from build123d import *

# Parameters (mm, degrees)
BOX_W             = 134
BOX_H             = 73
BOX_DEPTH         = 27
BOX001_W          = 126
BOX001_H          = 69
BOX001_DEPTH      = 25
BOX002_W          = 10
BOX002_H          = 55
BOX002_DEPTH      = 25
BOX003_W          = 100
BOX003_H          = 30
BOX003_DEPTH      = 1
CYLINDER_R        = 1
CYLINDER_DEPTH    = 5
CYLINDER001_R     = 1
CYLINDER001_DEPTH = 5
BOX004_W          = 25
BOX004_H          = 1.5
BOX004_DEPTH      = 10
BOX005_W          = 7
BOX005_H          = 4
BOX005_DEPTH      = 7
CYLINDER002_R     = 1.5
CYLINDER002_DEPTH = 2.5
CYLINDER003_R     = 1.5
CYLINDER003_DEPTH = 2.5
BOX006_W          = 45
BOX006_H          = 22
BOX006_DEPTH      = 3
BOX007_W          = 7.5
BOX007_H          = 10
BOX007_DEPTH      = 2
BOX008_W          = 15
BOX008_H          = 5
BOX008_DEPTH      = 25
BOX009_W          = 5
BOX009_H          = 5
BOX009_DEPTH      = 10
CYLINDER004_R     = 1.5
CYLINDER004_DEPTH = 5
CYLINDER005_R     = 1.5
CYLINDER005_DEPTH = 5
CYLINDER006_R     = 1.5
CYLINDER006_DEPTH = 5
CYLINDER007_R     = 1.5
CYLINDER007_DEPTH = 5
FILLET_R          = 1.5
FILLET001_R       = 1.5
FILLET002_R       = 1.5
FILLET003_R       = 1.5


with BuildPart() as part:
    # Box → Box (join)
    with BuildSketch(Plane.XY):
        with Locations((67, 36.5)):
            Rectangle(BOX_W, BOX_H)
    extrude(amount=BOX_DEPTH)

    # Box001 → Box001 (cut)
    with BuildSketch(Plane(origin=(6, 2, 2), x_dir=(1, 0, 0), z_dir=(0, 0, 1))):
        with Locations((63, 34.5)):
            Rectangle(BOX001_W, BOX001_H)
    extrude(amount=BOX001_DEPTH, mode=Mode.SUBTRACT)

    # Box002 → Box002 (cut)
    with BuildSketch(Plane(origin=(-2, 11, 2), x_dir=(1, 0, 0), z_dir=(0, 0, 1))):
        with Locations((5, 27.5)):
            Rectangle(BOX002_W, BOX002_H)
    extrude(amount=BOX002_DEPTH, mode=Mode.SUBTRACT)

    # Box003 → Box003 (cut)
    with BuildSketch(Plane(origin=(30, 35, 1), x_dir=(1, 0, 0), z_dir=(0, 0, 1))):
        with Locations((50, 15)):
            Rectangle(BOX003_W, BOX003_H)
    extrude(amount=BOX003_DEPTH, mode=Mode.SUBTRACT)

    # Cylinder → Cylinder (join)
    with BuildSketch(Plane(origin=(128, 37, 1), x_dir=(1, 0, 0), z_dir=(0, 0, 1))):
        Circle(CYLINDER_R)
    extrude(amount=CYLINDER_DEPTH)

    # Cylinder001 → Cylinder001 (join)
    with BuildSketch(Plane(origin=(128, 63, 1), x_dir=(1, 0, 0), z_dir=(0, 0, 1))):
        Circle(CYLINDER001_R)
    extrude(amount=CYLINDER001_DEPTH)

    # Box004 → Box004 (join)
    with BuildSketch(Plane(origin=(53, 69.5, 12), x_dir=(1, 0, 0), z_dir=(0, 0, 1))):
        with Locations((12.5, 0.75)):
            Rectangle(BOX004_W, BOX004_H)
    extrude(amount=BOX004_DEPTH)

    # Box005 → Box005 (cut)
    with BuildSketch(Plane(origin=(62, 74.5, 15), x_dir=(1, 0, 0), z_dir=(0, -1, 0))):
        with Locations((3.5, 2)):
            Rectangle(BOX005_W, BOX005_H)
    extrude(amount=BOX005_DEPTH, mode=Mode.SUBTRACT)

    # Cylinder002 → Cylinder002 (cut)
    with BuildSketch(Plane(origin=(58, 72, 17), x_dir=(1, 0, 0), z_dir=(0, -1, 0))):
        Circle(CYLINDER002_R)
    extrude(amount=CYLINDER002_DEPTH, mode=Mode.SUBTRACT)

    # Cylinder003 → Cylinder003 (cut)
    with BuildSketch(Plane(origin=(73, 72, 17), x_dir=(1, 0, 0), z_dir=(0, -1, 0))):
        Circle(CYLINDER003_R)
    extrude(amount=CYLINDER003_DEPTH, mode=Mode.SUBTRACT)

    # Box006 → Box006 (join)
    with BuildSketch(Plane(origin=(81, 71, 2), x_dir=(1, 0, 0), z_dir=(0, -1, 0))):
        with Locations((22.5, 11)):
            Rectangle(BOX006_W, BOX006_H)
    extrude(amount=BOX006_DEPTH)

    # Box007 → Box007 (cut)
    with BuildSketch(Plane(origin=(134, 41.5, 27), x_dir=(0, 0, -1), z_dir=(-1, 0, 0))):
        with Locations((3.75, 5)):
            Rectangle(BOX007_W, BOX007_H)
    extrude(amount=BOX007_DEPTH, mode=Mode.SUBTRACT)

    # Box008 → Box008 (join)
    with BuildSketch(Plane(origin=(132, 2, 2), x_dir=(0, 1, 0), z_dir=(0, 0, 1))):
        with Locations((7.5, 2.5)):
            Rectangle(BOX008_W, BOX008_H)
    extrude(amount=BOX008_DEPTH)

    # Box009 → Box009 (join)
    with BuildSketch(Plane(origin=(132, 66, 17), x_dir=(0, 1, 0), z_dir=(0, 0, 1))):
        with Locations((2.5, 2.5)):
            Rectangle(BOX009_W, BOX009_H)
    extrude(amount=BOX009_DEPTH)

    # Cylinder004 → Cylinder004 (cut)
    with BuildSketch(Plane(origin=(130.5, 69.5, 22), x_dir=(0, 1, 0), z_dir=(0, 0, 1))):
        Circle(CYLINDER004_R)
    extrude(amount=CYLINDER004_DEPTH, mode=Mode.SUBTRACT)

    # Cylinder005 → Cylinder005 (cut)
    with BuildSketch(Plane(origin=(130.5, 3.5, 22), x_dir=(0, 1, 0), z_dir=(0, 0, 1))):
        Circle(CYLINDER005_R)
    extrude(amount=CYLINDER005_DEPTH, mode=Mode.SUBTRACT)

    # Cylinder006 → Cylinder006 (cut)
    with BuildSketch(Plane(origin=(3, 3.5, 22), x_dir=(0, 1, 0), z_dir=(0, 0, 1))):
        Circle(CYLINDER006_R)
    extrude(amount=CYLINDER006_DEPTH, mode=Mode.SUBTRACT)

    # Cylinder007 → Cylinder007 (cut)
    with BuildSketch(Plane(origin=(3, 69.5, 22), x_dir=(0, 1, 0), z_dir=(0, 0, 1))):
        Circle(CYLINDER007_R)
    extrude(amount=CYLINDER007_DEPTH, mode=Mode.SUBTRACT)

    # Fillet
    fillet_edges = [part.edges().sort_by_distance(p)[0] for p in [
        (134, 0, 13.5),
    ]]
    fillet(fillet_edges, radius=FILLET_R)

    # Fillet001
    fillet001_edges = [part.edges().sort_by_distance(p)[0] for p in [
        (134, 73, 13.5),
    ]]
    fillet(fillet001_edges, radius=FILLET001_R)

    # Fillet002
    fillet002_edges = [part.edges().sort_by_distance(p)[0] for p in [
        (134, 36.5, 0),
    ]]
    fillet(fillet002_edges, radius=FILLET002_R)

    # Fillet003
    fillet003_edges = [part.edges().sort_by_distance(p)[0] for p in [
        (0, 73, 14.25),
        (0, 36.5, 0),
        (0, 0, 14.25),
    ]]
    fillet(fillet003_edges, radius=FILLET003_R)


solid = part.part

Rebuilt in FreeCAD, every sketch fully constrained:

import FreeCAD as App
import Part
import Sketcher
from FreeCAD import Vector
Q = App.Units.Quantity


def edges_at(feature, points):
    """Names of the edges that pass closest to the given points."""
    edges = feature.Shape.Edges
    near = lambda p: min(range(len(edges)), key=lambda i: edges[i].distToShape(Part.Vertex(*p))[0])
    return sorted({f"Edge{near(p) + 1}" for p in points})


def add_polygon(sketch, points):
    """Adds a closed chain of lines whose ends are joined by coincident constraints."""
    first, n = sketch.GeometryCount, len(points)
    for a, b in zip(points, points[1:] + points[:1]):
        sketch.addGeometry(Part.LineSegment(App.Vector(*a, 0), App.Vector(*b, 0)), False)
    for i in range(n):
        sketch.addConstraint(Sketcher.Constraint("Coincident", first + i, 2, first + (i + 1) % n, 1))

doc = App.newDocument("Part")
params = doc.addObject("Spreadsheet::Sheet", "Params")
for row, (alias, value) in enumerate([
    ("sketch1_width", "134 mm"),
    ("sketch1_height", "73 mm"),
    ("pad1_length", "27 mm"),
    ("sketch2_width", "126 mm"),
    ("sketch2_height", "69 mm"),
    ("pocket1_length", "25 mm"),
    ("sketch3_width", "10 mm"),
    ("sketch3_height", "55 mm"),
    ("pocket2_length", "25 mm"),
    ("sketch4_width", "100 mm"),
    ("sketch4_height", "30 mm"),
    ("pocket3_length", "1 mm"),
    ("sketch5_diameter", "2 mm"),
    ("pad2_length", "5 mm"),
    ("sketch6_diameter", "2 mm"),
    ("pad3_length", "5 mm"),
    ("sketch7_width", "25 mm"),
    ("sketch7_height", "1.5 mm"),
    ("pad4_length", "10 mm"),
    ("sketch8_width", "7 mm"),
    ("sketch8_height", "4 mm"),
    ("pocket4_length", "7 mm"),
    ("sketch9_diameter", "3 mm"),
    ("pocket5_length", "2.5 mm"),
    ("sketch10_diameter", "3 mm"),
    ("pocket6_length", "2.5 mm"),
    ("sketch11_width", "45 mm"),
    ("sketch11_height", "22 mm"),
    ("pad5_length", "3 mm"),
    ("sketch12_width", "10 mm"),
    ("sketch12_height", "7.5 mm"),
    ("pocket7_length", "2 mm"),
    ("sketch13_width", "5 mm"),
    ("sketch13_height", "15 mm"),
    ("pad6_length", "25 mm"),
    ("sketch14_width", "5 mm"),
    ("pad7_length", "10 mm"),
    ("sketch15_diameter", "3 mm"),
    ("pocket8_length", "5 mm"),
    ("sketch16_diameter", "3 mm"),
    ("pocket9_length", "5 mm"),
    ("sketch17_diameter", "3 mm"),
    ("pocket10_length", "5 mm"),
    ("sketch18_diameter", "3 mm"),
    ("pocket11_length", "5 mm"),
    ("fillet_radius", "1.5 mm"),
    ("fillet2_radius", "1.5 mm"),
    ("fillet3_radius", "1.5 mm"),
    ("fillet4_radius", "1.5 mm"),
], start=1):
    params.set(f"A{row}", alias)
    params.set(f"B{row}", "=" + value)
    params.setAlias(f"B{row}", alias)

body = doc.addObject("PartDesign::Body", "Body")

# Sketch on XY plane
sketch1 = body.newObject("Sketcher::SketchObject", "Sketch")
sketch1.AttachmentSupport = (doc.getObject("XY_Plane"), [""])
sketch1.MapMode = "FlatFace"
add_polygon(sketch1, [(0, 73), (0, 0), (134, 0), (134, 73)])  # lines 0-3
sketch1.addConstraint([
    Sketcher.Constraint("Vertical", 0),
    Sketcher.Constraint("Horizontal", 1),
    Sketcher.Constraint("Vertical", 2),
    Sketcher.Constraint("Horizontal", 3),
    Sketcher.Constraint("Coincident", 0, 2, -1, 1),
    Sketcher.Constraint("DistanceX", 1, 1, 1, 2, Q("134 mm")),
    Sketcher.Constraint("DistanceY", 0, 2, 0, 1, Q("73 mm")),
])
sketch1.setExpression("Constraints[9]", "Params.sketch1_width")
sketch1.setExpression("Constraints[10]", "Params.sketch1_height")
pad1 = body.newObject("PartDesign::Pad", "Pad")
pad1.Profile = sketch1
pad1.setExpression("Length", "Params.pad1_length")

# Sketch on XY plane
sketch2 = body.newObject("Sketcher::SketchObject", "Sketch001")
sketch2.AttachmentSupport = (doc.getObject("XY_Plane"), [""])
sketch2.MapMode = "FlatFace"
sketch2.AttachmentOffset = App.Placement(Vector(0, 0, 2), App.Rotation())
add_polygon(sketch2, [(6, 71), (6, 2), (132, 2), (132, 71)])  # lines 0-3
sketch2.addConstraint([
    Sketcher.Constraint("Vertical", 0),
    Sketcher.Constraint("Horizontal", 1),
    Sketcher.Constraint("Vertical", 2),
    Sketcher.Constraint("Horizontal", 3),
    Sketcher.Constraint("DistanceX", 1, 1, 1, 2, Q("126 mm")),
    Sketcher.Constraint("DistanceY", 0, 2, 0, 1, Q("69 mm")),
    Sketcher.Constraint("DistanceX", -1, 1, 0, 2, Q("6 mm")),
    Sketcher.Constraint("DistanceY", -1, 1, 0, 2, Q("2 mm")),
])
sketch2.setExpression("Constraints[8]", "Params.sketch2_width")
sketch2.setExpression("Constraints[9]", "Params.sketch2_height")
pocket1 = body.newObject("PartDesign::Pocket", "Pocket")
pocket1.Profile = sketch2
pocket1.setExpression("Length", "Params.pocket1_length")
pocket1.Reversed = True

# Sketch on XY plane
sketch3 = body.newObject("Sketcher::SketchObject", "Sketch002")
sketch3.AttachmentSupport = (doc.getObject("XY_Plane"), [""])
sketch3.MapMode = "FlatFace"
sketch3.AttachmentOffset = App.Placement(Vector(0, 0, 2), App.Rotation())
add_polygon(sketch3, [(-2, 66), (-2, 11), (8, 11), (8, 66)])  # lines 0-3
sketch3.addConstraint([
    Sketcher.Constraint("Vertical", 0),
    Sketcher.Constraint("Horizontal", 1),
    Sketcher.Constraint("Vertical", 2),
    Sketcher.Constraint("Horizontal", 3),
    Sketcher.Constraint("DistanceX", 1, 1, 1, 2, Q("10 mm")),
    Sketcher.Constraint("DistanceY", 0, 2, 0, 1, Q("55 mm")),
    Sketcher.Constraint("DistanceX", 0, 2, -1, 1, Q("2 mm")),
    Sketcher.Constraint("DistanceY", -1, 1, 0, 2, Q("11 mm")),
])
sketch3.setExpression("Constraints[8]", "Params.sketch3_width")
sketch3.setExpression("Constraints[9]", "Params.sketch3_height")
pocket2 = body.newObject("PartDesign::Pocket", "Pocket001")
pocket2.Profile = sketch3
pocket2.setExpression("Length", "Params.pocket2_length")
pocket2.Reversed = True

# Sketch on XY plane
sketch4 = body.newObject("Sketcher::SketchObject", "Sketch003")
sketch4.AttachmentSupport = (doc.getObject("XY_Plane"), [""])
sketch4.MapMode = "FlatFace"
sketch4.AttachmentOffset = App.Placement(Vector(0, 0, 1), App.Rotation())
add_polygon(sketch4, [(30, 65), (30, 35), (130, 35), (130, 65)])  # lines 0-3
sketch4.addConstraint([
    Sketcher.Constraint("Vertical", 0),
    Sketcher.Constraint("Horizontal", 1),
    Sketcher.Constraint("Vertical", 2),
    Sketcher.Constraint("Horizontal", 3),
    Sketcher.Constraint("DistanceX", 1, 1, 1, 2, Q("100 mm")),
    Sketcher.Constraint("DistanceY", 0, 2, 0, 1, Q("30 mm")),
    Sketcher.Constraint("DistanceX", -1, 1, 0, 2, Q("30 mm")),
    Sketcher.Constraint("DistanceY", -1, 1, 0, 2, Q("35 mm")),
])
sketch4.setExpression("Constraints[8]", "Params.sketch4_width")
sketch4.setExpression("Constraints[9]", "Params.sketch4_height")
pocket3 = body.newObject("PartDesign::Pocket", "Pocket002")
pocket3.Profile = sketch4
pocket3.setExpression("Length", "Params.pocket3_length")
pocket3.Reversed = True

# Sketch on XY plane
sketch5 = body.newObject("Sketcher::SketchObject", "Sketch004")
sketch5.AttachmentSupport = (doc.getObject("XY_Plane"), [""])
sketch5.MapMode = "FlatFace"
sketch5.AttachmentOffset = App.Placement(Vector(0, 0, 1), App.Rotation())
sketch5.addGeometry(Part.Circle(Vector(128, 37, 0), Vector(0, 0, 1), 1), False)
sketch5.addConstraint([
    Sketcher.Constraint("Diameter", 0, Q("2 mm")),
    Sketcher.Constraint("DistanceX", -1, 1, 0, 3, Q("128 mm")),
    Sketcher.Constraint("DistanceY", -1, 1, 0, 3, Q("37 mm")),
])
sketch5.setExpression("Constraints[0]", "Params.sketch5_diameter")
pad2 = body.newObject("PartDesign::Pad", "Pad001")
pad2.Profile = sketch5
pad2.setExpression("Length", "Params.pad2_length")

# Sketch on XY plane
sketch6 = body.newObject("Sketcher::SketchObject", "Sketch005")
sketch6.AttachmentSupport = (doc.getObject("XY_Plane"), [""])
sketch6.MapMode = "FlatFace"
sketch6.AttachmentOffset = App.Placement(Vector(0, 0, 1), App.Rotation())
sketch6.addGeometry(Part.Circle(Vector(128, 63, 0), Vector(0, 0, 1), 1), False)
sketch6.addConstraint([
    Sketcher.Constraint("Diameter", 0, Q("2 mm")),
    Sketcher.Constraint("DistanceX", -1, 1, 0, 3, Q("128 mm")),
    Sketcher.Constraint("DistanceY", -1, 1, 0, 3, Q("63 mm")),
])
sketch6.setExpression("Constraints[0]", "Params.sketch6_diameter")
pad3 = body.newObject("PartDesign::Pad", "Pad002")
pad3.Profile = sketch6
pad3.setExpression("Length", "Params.pad3_length")

# Sketch on XY plane
sketch7 = body.newObject("Sketcher::SketchObject", "Sketch006")
sketch7.AttachmentSupport = (doc.getObject("XY_Plane"), [""])
sketch7.MapMode = "FlatFace"
sketch7.AttachmentOffset = App.Placement(Vector(0, 0, 12), App.Rotation())
add_polygon(sketch7, [(53, 71), (53, 69.5), (78, 69.5), (78, 71)])  # lines 0-3
sketch7.addConstraint([
    Sketcher.Constraint("Vertical", 0),
    Sketcher.Constraint("Horizontal", 1),
    Sketcher.Constraint("Vertical", 2),
    Sketcher.Constraint("Horizontal", 3),
    Sketcher.Constraint("DistanceX", 1, 1, 1, 2, Q("25 mm")),
    Sketcher.Constraint("DistanceY", 0, 2, 0, 1, Q("1.5 mm")),
    Sketcher.Constraint("DistanceX", -1, 1, 0, 2, Q("53 mm")),
    Sketcher.Constraint("DistanceY", -1, 1, 2, 2, Q("71 mm")),
])
sketch7.setExpression("Constraints[8]", "Params.sketch7_width")
sketch7.setExpression("Constraints[9]", "Params.sketch7_height")
pad4 = body.newObject("PartDesign::Pad", "Pad003")
pad4.Profile = sketch7
pad4.setExpression("Length", "Params.pad4_length")

# Sketch on XZ plane
sketch8 = body.newObject("Sketcher::SketchObject", "Sketch007")
sketch8.AttachmentSupport = (doc.getObject("XZ_Plane"), [""])
sketch8.MapMode = "FlatFace"
sketch8.AttachmentOffset = App.Placement(Vector(0, 0, -74.5), App.Rotation())
add_polygon(sketch8, [(62, 19), (62, 15), (69, 15), (69, 19)])  # lines 0-3
sketch8.addConstraint([
    Sketcher.Constraint("Vertical", 0),
    Sketcher.Constraint("Horizontal", 1),
    Sketcher.Constraint("Vertical", 2),
    Sketcher.Constraint("Horizontal", 3),
    Sketcher.Constraint("DistanceX", 1, 1, 1, 2, Q("7 mm")),
    Sketcher.Constraint("DistanceY", 0, 2, 0, 1, Q("4 mm")),
    Sketcher.Constraint("DistanceX", -1, 1, 0, 2, Q("62 mm")),
    Sketcher.Constraint("DistanceY", -1, 1, 0, 2, Q("15 mm")),
])
sketch8.setExpression("Constraints[8]", "Params.sketch8_width")
sketch8.setExpression("Constraints[9]", "Params.sketch8_height")
pocket4 = body.newObject("PartDesign::Pocket", "Pocket003")
pocket4.Profile = sketch8
pocket4.setExpression("Length", "Params.pocket4_length")
pocket4.Reversed = True

# Sketch on XZ plane
sketch9 = body.newObject("Sketcher::SketchObject", "Sketch008")
sketch9.AttachmentSupport = (doc.getObject("XZ_Plane"), [""])
sketch9.MapMode = "FlatFace"
sketch9.AttachmentOffset = App.Placement(Vector(0, 0, -72), App.Rotation())
sketch9.addGeometry(Part.Circle(Vector(58, 17, 0), Vector(0, 0, 1), 1.5), False)
sketch9.addConstraint([
    Sketcher.Constraint("Diameter", 0, Q("3 mm")),
    Sketcher.Constraint("DistanceX", -1, 1, 0, 3, Q("58 mm")),
    Sketcher.Constraint("DistanceY", -1, 1, 0, 3, Q("17 mm")),
])
sketch9.setExpression("Constraints[0]", "Params.sketch9_diameter")
pocket5 = body.newObject("PartDesign::Pocket", "Pocket004")
pocket5.Profile = sketch9
pocket5.setExpression("Length", "Params.pocket5_length")
pocket5.Reversed = True

# Sketch on XZ plane
sketch10 = body.newObject("Sketcher::SketchObject", "Sketch009")
sketch10.AttachmentSupport = (doc.getObject("XZ_Plane"), [""])
sketch10.MapMode = "FlatFace"
sketch10.AttachmentOffset = App.Placement(Vector(0, 0, -72), App.Rotation())
sketch10.addGeometry(Part.Circle(Vector(73, 17, 0), Vector(0, 0, 1), 1.5), False)
sketch10.addConstraint([
    Sketcher.Constraint("Diameter", 0, Q("3 mm")),
    Sketcher.Constraint("DistanceX", -1, 1, 0, 3, Q("73 mm")),
    Sketcher.Constraint("DistanceY", -1, 1, 0, 3, Q("17 mm")),
])
sketch10.setExpression("Constraints[0]", "Params.sketch10_diameter")
pocket6 = body.newObject("PartDesign::Pocket", "Pocket005")
pocket6.Profile = sketch10
pocket6.setExpression("Length", "Params.pocket6_length")
pocket6.Reversed = True

# Sketch on XZ plane
sketch11 = body.newObject("Sketcher::SketchObject", "Sketch010")
sketch11.AttachmentSupport = (doc.getObject("XZ_Plane"), [""])
sketch11.MapMode = "FlatFace"
sketch11.AttachmentOffset = App.Placement(Vector(0, 0, -71), App.Rotation())
add_polygon(sketch11, [(81, 24), (81, 2), (126, 2), (126, 24)])  # lines 0-3
sketch11.addConstraint([
    Sketcher.Constraint("Vertical", 0),
    Sketcher.Constraint("Horizontal", 1),
    Sketcher.Constraint("Vertical", 2),
    Sketcher.Constraint("Horizontal", 3),
    Sketcher.Constraint("DistanceX", 1, 1, 1, 2, Q("45 mm")),
    Sketcher.Constraint("DistanceY", 0, 2, 0, 1, Q("22 mm")),
    Sketcher.Constraint("DistanceX", -1, 1, 0, 2, Q("81 mm")),
    Sketcher.Constraint("DistanceY", -1, 1, 0, 2, Q("2 mm")),
])
sketch11.setExpression("Constraints[8]", "Params.sketch11_width")
sketch11.setExpression("Constraints[9]", "Params.sketch11_height")
pad5 = body.newObject("PartDesign::Pad", "Pad004")
pad5.Profile = sketch11
pad5.setExpression("Length", "Params.pad5_length")

# Sketch on YZ plane
sketch12 = body.newObject("Sketcher::SketchObject", "Sketch011")
sketch12.AttachmentSupport = (doc.getObject("YZ_Plane"), [""])
sketch12.MapMode = "FlatFace"
sketch12.AttachmentOffset = App.Placement(Vector(0, 0, 134), App.Rotation())
add_polygon(sketch12, [(31.5, 27), (41.5, 27), (41.5, 19.5), (31.5, 19.5)])  # lines 0-3
sketch12.addConstraint([
    Sketcher.Constraint("Horizontal", 0),
    Sketcher.Constraint("Vertical", 1),
    Sketcher.Constraint("Horizontal", 2),
    Sketcher.Constraint("Vertical", 3),
    Sketcher.Constraint("DistanceX", 0, 1, 0, 2, Q("10 mm")),
    Sketcher.Constraint("DistanceY", 1, 2, 1, 1, Q("7.5 mm")),
    Sketcher.Constraint("DistanceY", -1, 1, 0, 2, Q("27 mm")),
    Sketcher.Constraint("DistanceX", -1, 1, 0, 2, Q("41.5 mm")),
])
sketch12.setExpression("Constraints[8]", "Params.sketch12_width")
sketch12.setExpression("Constraints[9]", "Params.sketch12_height")
pocket7 = body.newObject("PartDesign::Pocket", "Pocket006")
pocket7.Profile = sketch12
pocket7.setExpression("Length", "Params.pocket7_length")

# Sketch on XY plane
sketch13 = body.newObject("Sketcher::SketchObject", "Sketch012")
sketch13.AttachmentSupport = (doc.getObject("XY_Plane"), [""])
sketch13.MapMode = "FlatFace"
sketch13.AttachmentOffset = App.Placement(Vector(0, 0, 2), App.Rotation())
add_polygon(sketch13, [(127, 2), (132, 2), (132, 17), (127, 17)])  # lines 0-3
sketch13.addConstraint([
    Sketcher.Constraint("Horizontal", 0),
    Sketcher.Constraint("Vertical", 1),
    Sketcher.Constraint("Horizontal", 2),
    Sketcher.Constraint("Vertical", 3),
    Sketcher.Constraint("DistanceX", 0, 1, 0, 2, Q("5 mm")),
    Sketcher.Constraint("DistanceY", 1, 1, 1, 2, Q("15 mm")),
    Sketcher.Constraint("DistanceX", -1, 1, 0, 2, Q("132 mm")),
    Sketcher.Constraint("DistanceY", -1, 1, 0, 2, Q("2 mm")),
])
sketch13.setExpression("Constraints[8]", "Params.sketch13_width")
sketch13.setExpression("Constraints[9]", "Params.sketch13_height")
pad6 = body.newObject("PartDesign::Pad", "Pad005")
pad6.Profile = sketch13
pad6.setExpression("Length", "Params.pad6_length")

# Sketch on XY plane
sketch14 = body.newObject("Sketcher::SketchObject", "Sketch013")
sketch14.AttachmentSupport = (doc.getObject("XY_Plane"), [""])
sketch14.MapMode = "FlatFace"
sketch14.AttachmentOffset = App.Placement(Vector(0, 0, 17), App.Rotation())
add_polygon(sketch14, [(127, 66), (132, 66), (132, 71), (127, 71)])  # lines 0-3
sketch14.addConstraint([
    Sketcher.Constraint("Horizontal", 0),
    Sketcher.Constraint("Vertical", 1),
    Sketcher.Constraint("Horizontal", 2),
    Sketcher.Constraint("Vertical", 3),
    Sketcher.Constraint("Equal", 2, 1),
    Sketcher.Constraint("DistanceX", 0, 1, 0, 2, Q("5 mm")),
    Sketcher.Constraint("DistanceX", -1, 1, 0, 2, Q("132 mm")),
    Sketcher.Constraint("DistanceY", -1, 1, 0, 2, Q("66 mm")),
])
sketch14.setExpression("Constraints[9]", "Params.sketch14_width")
pad7 = body.newObject("PartDesign::Pad", "Pad006")
pad7.Profile = sketch14
pad7.setExpression("Length", "Params.pad7_length")

# Sketch on XY plane
sketch15 = body.newObject("Sketcher::SketchObject", "Sketch014")
sketch15.AttachmentSupport = (doc.getObject("XY_Plane"), [""])
sketch15.MapMode = "FlatFace"
sketch15.AttachmentOffset = App.Placement(Vector(0, 0, 22), App.Rotation())
sketch15.addGeometry(Part.Circle(Vector(130.5, 69.5, 0), Vector(0, 0, 1), 1.5), False)
sketch15.addConstraint([
    Sketcher.Constraint("Diameter", 0, Q("3 mm")),
    Sketcher.Constraint("DistanceX", -1, 1, 0, 3, Q("130.5 mm")),
    Sketcher.Constraint("DistanceY", -1, 1, 0, 3, Q("69.5 mm")),
])
sketch15.setExpression("Constraints[0]", "Params.sketch15_diameter")
pocket8 = body.newObject("PartDesign::Pocket", "Pocket007")
pocket8.Profile = sketch15
pocket8.setExpression("Length", "Params.pocket8_length")
pocket8.Reversed = True

# Sketch on XY plane
sketch16 = body.newObject("Sketcher::SketchObject", "Sketch015")
sketch16.AttachmentSupport = (doc.getObject("XY_Plane"), [""])
sketch16.MapMode = "FlatFace"
sketch16.AttachmentOffset = App.Placement(Vector(0, 0, 22), App.Rotation())
sketch16.addGeometry(Part.Circle(Vector(130.5, 3.5, 0), Vector(0, 0, 1), 1.5), False)
sketch16.addConstraint([
    Sketcher.Constraint("Diameter", 0, Q("3 mm")),
    Sketcher.Constraint("DistanceX", -1, 1, 0, 3, Q("130.5 mm")),
    Sketcher.Constraint("DistanceY", -1, 1, 0, 3, Q("3.5 mm")),
])
sketch16.setExpression("Constraints[0]", "Params.sketch16_diameter")
pocket9 = body.newObject("PartDesign::Pocket", "Pocket008")
pocket9.Profile = sketch16
pocket9.setExpression("Length", "Params.pocket9_length")
pocket9.Reversed = True

# Sketch on XY plane
sketch17 = body.newObject("Sketcher::SketchObject", "Sketch016")
sketch17.AttachmentSupport = (doc.getObject("XY_Plane"), [""])
sketch17.MapMode = "FlatFace"
sketch17.AttachmentOffset = App.Placement(Vector(0, 0, 22), App.Rotation())
sketch17.addGeometry(Part.Circle(Vector(3, 3.5, 0), Vector(0, 0, 1), 1.5), False)
sketch17.addConstraint([
    Sketcher.Constraint("Diameter", 0, Q("3 mm")),
    Sketcher.Constraint("DistanceX", -1, 1, 0, 3, Q("3 mm")),
    Sketcher.Constraint("DistanceY", -1, 1, 0, 3, Q("3.5 mm")),
])
sketch17.setExpression("Constraints[0]", "Params.sketch17_diameter")
pocket10 = body.newObject("PartDesign::Pocket", "Pocket009")
pocket10.Profile = sketch17
pocket10.setExpression("Length", "Params.pocket10_length")
pocket10.Reversed = True

# Sketch on XY plane
sketch18 = body.newObject("Sketcher::SketchObject", "Sketch017")
sketch18.AttachmentSupport = (doc.getObject("XY_Plane"), [""])
sketch18.MapMode = "FlatFace"
sketch18.AttachmentOffset = App.Placement(Vector(0, 0, 22), App.Rotation())
sketch18.addGeometry(Part.Circle(Vector(3, 69.5, 0), Vector(0, 0, 1), 1.5), False)
sketch18.addConstraint([
    Sketcher.Constraint("Diameter", 0, Q("3 mm")),
    Sketcher.Constraint("DistanceX", -1, 1, 0, 3, Q("3 mm")),
    Sketcher.Constraint("DistanceY", -1, 1, 0, 3, Q("69.5 mm")),
])
sketch18.setExpression("Constraints[0]", "Params.sketch18_diameter")
pocket11 = body.newObject("PartDesign::Pocket", "Pocket010")
pocket11.Profile = sketch18
pocket11.setExpression("Length", "Params.pocket11_length")
pocket11.Reversed = True
doc.recompute()

fillet = body.newObject("PartDesign::Fillet", "Fillet")
fillet.Base = (pocket11, edges_at(pocket11, [(134, 0, 13.5)]))
fillet.setExpression("Radius", "Params.fillet_radius")
doc.recompute()

fillet2 = body.newObject("PartDesign::Fillet", "Fillet001")
fillet2.Base = (fillet, edges_at(fillet, [(134, 73, 13.5)]))
fillet2.setExpression("Radius", "Params.fillet2_radius")
doc.recompute()

fillet3 = body.newObject("PartDesign::Fillet", "Fillet002")
fillet3.Base = (fillet2, edges_at(fillet2, [(134, 36.5, 0)]))
fillet3.setExpression("Radius", "Params.fillet3_radius")
doc.recompute()

fillet4 = body.newObject("PartDesign::Fillet", "Fillet003")
fillet4.Base = (fillet3, edges_at(fillet3, [(0, 73, 14.25), (0, 36.5, 0), (0, 0, 14.25)]))
fillet4.setExpression("Radius", "Params.fillet4_radius")

doc.recompute()
